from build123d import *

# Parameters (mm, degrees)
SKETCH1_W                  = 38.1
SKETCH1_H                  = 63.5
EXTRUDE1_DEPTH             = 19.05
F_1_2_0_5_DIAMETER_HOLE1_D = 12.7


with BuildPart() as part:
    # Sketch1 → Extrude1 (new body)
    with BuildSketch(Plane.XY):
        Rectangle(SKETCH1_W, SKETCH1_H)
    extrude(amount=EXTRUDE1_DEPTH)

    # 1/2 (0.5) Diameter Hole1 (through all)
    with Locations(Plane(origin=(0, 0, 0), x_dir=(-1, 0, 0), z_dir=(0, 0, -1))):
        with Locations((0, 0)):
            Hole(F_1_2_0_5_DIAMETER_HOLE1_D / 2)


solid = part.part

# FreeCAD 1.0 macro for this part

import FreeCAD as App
import Part
import Sketcher
from FreeCAD import Vector
Q = App.Units.Quantity

doc = App.newDocument("Part")
body = doc.addObject("PartDesign::Body", "Body")

sketch1 = body.newObject("Sketcher::SketchObject", "Sketch")
sketch1.AttachmentSupport = (doc.getObject("XY_Plane"), [""])
sketch1.MapMode = "FlatFace"
sketch1.addGeometry([
    Part.LineSegment(Vector(-19.05, 31.75, 0), Vector(-19.05, -31.75, 0)),
    Part.LineSegment(Vector(-19.05, -31.75, 0), Vector(19.05, -31.75, 0)),
    Part.LineSegment(Vector(19.05, -31.75, 0), Vector(19.05, 31.75, 0)),
    Part.LineSegment(Vector(19.05, 31.75, 0), Vector(-19.05, 31.75, 0)),
], False)
sketch1.addConstraint([
    Sketcher.Constraint("Coincident", 0, 2, 1, 1),
    Sketcher.Constraint("Coincident", 1, 2, 2, 1),
    Sketcher.Constraint("Coincident", 2, 2, 3, 1),
    Sketcher.Constraint("Coincident", 3, 2, 0, 1),
    Sketcher.Constraint("Vertical", 0),
    Sketcher.Constraint("Horizontal", 1),
    Sketcher.Constraint("Vertical", 2),
    Sketcher.Constraint("Horizontal", 3),
    Sketcher.Constraint("Symmetric", 0, 2, 2, 2, -1, 1),
    Sketcher.Constraint("DistanceX", 1, 1, 1, 2, Q("1.5 in")),
    Sketcher.Constraint("DistanceY", 0, 2, 0, 1, Q("2.5 in")),
])
pad1 = body.newObject("PartDesign::Pad", "Pad")
pad1.Profile = sketch1
pad1.Length = Q("0.75 in")

sketch2 = body.newObject("Sketcher::SketchObject", "Sketch001")
sketch2.AttachmentSupport = (doc.getObject("XY_Plane"), [""])
sketch2.MapMode = "FlatFace"
sketch2.addGeometry(Part.Circle(Vector(0, 0, 0), Vector(0, 0, 1), 6.35), False)
sketch2.addConstraint([
    Sketcher.Constraint("Coincident", 0, 3, -1, 1),
    Sketcher.Constraint("Diameter", 0, Q("0.5 in")),
])
doc.recompute()
hole = body.newObject("PartDesign::Hole", "Hole")
hole.Profile = sketch2
hole.ThreadType = "None"
hole.Diameter = Q("0.5 in")
hole.DepthType = "ThroughAll"
hole.Reversed = True

doc.recompute()
